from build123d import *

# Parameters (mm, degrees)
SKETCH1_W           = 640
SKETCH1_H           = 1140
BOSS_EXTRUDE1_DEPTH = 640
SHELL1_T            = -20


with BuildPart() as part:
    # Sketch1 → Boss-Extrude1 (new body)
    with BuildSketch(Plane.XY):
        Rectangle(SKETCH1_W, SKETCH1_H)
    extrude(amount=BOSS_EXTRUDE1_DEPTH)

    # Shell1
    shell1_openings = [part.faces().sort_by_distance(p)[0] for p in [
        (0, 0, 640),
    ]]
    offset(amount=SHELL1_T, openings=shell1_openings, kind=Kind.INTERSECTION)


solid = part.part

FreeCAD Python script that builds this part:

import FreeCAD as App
import Part
import Sketcher
Q = App.Units.Quantity


def faces_at(feature, points):
    """Names of the faces that lie closest to the given points."""
    faces = feature.Shape.Faces
    near = lambda p: min(range(len(faces)), key=lambda i: faces[i].distToShape(Part.Vertex(*p))[0])
    return sorted({f"Face{near(p) + 1}" for p in points})

doc = App.newDocument("Part")
params = doc.addObject("Spreadsheet::Sheet", "Params")
for row, (alias, value) in enumerate([
    ("sketch1_width", "640 mm"),
    ("sketch1_height", "1140 mm"),
    ("pad1_length", "640 mm"),
    ("thickness_wall", "20 mm"),
], start=1):
    params.set(f"A{row}", alias)
    params.set(f"B{row}", "=" + value)
    params.setAlias(f"B{row}", alias)

body = doc.addObject("PartDesign::Body", "Body")

# Sketch on XY plane
sketch1 = body.newObject("Sketcher::SketchObject", "Sketch")
sketch1.AttachmentSupport = (doc.getObject("XY_Plane"), [""])
sketch1.MapMode = "FlatFace"
sketch1.addGeometry([
    Part.LineSegment(App.Vector(-320, 570, 0), App.Vector(-320, -570, 0)),
    Part.LineSegment(App.Vector(-320, -570, 0), App.Vector(320, -570, 0)),
    Part.LineSegment(App.Vector(320, -570, 0), App.Vector(320, 570, 0)),
    Part.LineSegment(App.Vector(320, 570, 0), App.Vector(-320, 570, 0)),
], False)
sketch1.addConstraint([
    Sketcher.Constraint("Coincident", 0, 2, 1, 1),
    Sketcher.Constraint("Coincident", 1, 2, 2, 1),
    Sketcher.Constraint("Coincident", 2, 2, 3, 1),
    Sketcher.Constraint("Coincident", 3, 2, 0, 1),
    Sketcher.Constraint("Vertical", 0),
    Sketcher.Constraint("Horizontal", 1),
    Sketcher.Constraint("Vertical", 2),
    Sketcher.Constraint("Horizontal", 3),
    Sketcher.Constraint("Symmetric", 0, 2, 2, 2, -1, 1),
    Sketcher.Constraint("DistanceX", 1, 1, 1, 2, Q("640 mm")),
    Sketcher.Constraint("DistanceY", 0, 2, 0, 1, Q("1140 mm")),
])
sketch1.setExpression("Constraints[9]", "Params.sketch1_width")
sketch1.setExpression("Constraints[10]", "Params.sketch1_height")
pad1 = body.newObject("PartDesign::Pad", "Pad")
pad1.Profile = sketch1
pad1.setExpression("Length", "Params.pad1_length")
doc.recompute()

thickness = body.newObject("PartDesign::Thickness", "Thickness")
thickness.Base = (pad1, faces_at(pad1, [(0, 0, 640)]))
thickness.setExpression("Value", "Params.thickness_wall")
thickness.Reversed = True
thickness.Join = "Intersection"

doc.recompute()
